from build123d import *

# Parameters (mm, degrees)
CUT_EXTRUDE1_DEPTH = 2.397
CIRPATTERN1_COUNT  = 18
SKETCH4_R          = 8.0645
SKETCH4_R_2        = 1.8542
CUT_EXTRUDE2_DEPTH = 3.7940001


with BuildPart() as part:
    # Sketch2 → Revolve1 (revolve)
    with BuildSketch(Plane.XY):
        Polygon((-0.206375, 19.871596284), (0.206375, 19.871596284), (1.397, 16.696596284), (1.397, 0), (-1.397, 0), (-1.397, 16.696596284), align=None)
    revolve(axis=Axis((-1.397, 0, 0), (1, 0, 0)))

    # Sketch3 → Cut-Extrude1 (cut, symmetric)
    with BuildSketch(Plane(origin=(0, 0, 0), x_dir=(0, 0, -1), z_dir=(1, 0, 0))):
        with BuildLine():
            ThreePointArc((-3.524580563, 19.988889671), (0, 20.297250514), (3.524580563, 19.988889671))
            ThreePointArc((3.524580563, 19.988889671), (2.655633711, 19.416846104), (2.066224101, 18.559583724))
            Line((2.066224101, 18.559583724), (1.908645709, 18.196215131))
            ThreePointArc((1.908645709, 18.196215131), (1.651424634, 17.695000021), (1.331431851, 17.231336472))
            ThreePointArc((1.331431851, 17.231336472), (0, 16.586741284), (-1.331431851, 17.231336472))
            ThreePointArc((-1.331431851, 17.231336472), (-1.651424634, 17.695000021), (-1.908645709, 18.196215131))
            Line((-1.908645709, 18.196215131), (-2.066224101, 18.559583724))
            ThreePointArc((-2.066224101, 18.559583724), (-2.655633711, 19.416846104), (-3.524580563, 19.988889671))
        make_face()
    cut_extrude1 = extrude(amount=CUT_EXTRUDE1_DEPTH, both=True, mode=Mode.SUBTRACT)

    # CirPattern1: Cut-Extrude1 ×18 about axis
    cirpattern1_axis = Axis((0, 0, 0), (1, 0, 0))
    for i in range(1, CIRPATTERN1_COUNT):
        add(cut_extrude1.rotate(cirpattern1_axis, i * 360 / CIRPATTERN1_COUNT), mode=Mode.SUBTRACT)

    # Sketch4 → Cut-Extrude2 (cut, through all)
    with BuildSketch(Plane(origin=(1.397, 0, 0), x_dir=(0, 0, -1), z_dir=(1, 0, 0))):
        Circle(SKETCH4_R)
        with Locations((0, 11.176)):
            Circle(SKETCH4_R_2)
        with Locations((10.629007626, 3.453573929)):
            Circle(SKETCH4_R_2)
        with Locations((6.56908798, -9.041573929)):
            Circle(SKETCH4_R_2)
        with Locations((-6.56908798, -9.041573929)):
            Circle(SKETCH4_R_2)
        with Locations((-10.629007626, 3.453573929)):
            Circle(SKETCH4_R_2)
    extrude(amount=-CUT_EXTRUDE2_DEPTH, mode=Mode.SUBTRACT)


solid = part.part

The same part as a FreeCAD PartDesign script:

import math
import FreeCAD as App
import Part
import Sketcher
Q = App.Units.Quantity


def add_polygon(sketch, points):
    """Adds a closed chain of lines whose ends are joined by coincident constraints."""
    first, n = sketch.GeometryCount, len(points)
    for a, b in zip(points, points[1:] + points[:1]):
        sketch.addGeometry(Part.LineSegment(App.Vector(*a, 0), App.Vector(*b, 0)), False)
    for i in range(n):
        sketch.addConstraint(Sketcher.Constraint("Coincident", first + i, 2, first + (i + 1) % n, 1))

doc = App.newDocument("Part")
params = doc.addObject("Spreadsheet::Sheet", "Params")
for row, (alias, value) in enumerate([
    ("sketch1_width", "0.11 in"),
    ("revolution_angle", "360 deg"),
    ("pocket1_length", "4.794 mm"),
    ("sketch3_diameter", "0.635 in"),
    ("sketch3_diameter2", "0.146 in"),
], start=1):
    params.set(f"A{row}", alias)
    params.set(f"B{row}", "=" + value)
    params.setAlias(f"B{row}", alias)

body = doc.addObject("PartDesign::Body", "Body")

# Sketch on XY plane
sketch1 = doc.addObject("Sketcher::SketchObject", "Sketch")
body.addObject(sketch1)
sketch1.AttachmentSupport = (doc.XY_Plane, [""])
sketch1.MapMode = "FlatFace"
add_polygon(sketch1, [(0.206375, 19.871596), (-0.206375, 19.871596), (-1.397, 16.696596), (-1.397, 0), (1.397, 0), (1.397, 16.696596)])  # lines 0-5
sketch1.addConstraint([
    Sketcher.Constraint("Horizontal", 0),
    Sketcher.Constraint("Vertical", 2),
    Sketcher.Constraint("Horizontal", 3),
    Sketcher.Constraint("Vertical", 4),
    Sketcher.Constraint("Symmetric", 2, 2, 3, 2, -1, 1),
    Sketcher.Constraint("Horizontal", 1, 2, 4, 2),
    Sketcher.Constraint("Equal", 1, 5),
    Sketcher.Constraint("DistanceX", 3, 1, 3, 2, Q("0.11 in")),
    Sketcher.Constraint("DistanceX", 1, 2, 0, 2, Q("0.046875 in")),
    Sketcher.Constraint("DistanceY", 1, 2, 0, 2, Q("0.125 in")),
    Sketcher.Constraint("DistanceY", 2, 2, 2, 1, 16.696596),
])
sketch1.setExpression("Constraints[13]", "Params.sketch1_width")
revolution = doc.addObject("PartDesign::Revolution", "Revolution")
body.addObject(revolution)
revolution.Profile = sketch1
revolution.ReferenceAxis = (sketch1, ["H_Axis"])
revolution.setExpression("Angle", "Params.revolution_angle")

# Sketch on YZ plane
sketch2 = doc.addObject("Sketcher::SketchObject", "Sketch001")
body.addObject(sketch2)
sketch2.AttachmentSupport = (doc.YZ_Plane, [""])
sketch2.MapMode = "FlatFace"
sketch2.addGeometry([
    Part.ArcOfCircle(Part.Circle(App.Vector(0, 0, 0), App.Vector(0, 0, 1), 20.297251), math.radians(-10), math.radians(10)),  # 0
    Part.ArcOfCircle(Part.Circle(App.Vector(17.481355, 4.552569, 0), App.Vector(0, 0, 1), 2.710072), math.radians(-66.555556), math.radians(-22.291667)),  # 1
    Part.LineSegment(App.Vector(18.559584, 2.066224, 0), App.Vector(18.196215, 1.908646, 0)),  # 2
    Part.ArcOfCircle(Part.Circle(App.Vector(19.92251, -2.072112, 0), App.Vector(0, 0, 1), 4.338955), math.radians(113.444444), math.radians(128.333333)),  # 3
    Part.ArcOfCircle(Part.Circle(App.Vector(18.284096, 0, 0), App.Vector(0, 0, 1), 1.697355), math.radians(128.333333), math.radians(231.666667)),  # 4
    Part.ArcOfCircle(Part.Circle(App.Vector(19.92251, 2.072112, 0), App.Vector(0, 0, 1), 4.338955), math.radians(-128.333333), math.radians(-113.444444)),  # 5
    Part.LineSegment(App.Vector(18.196215, -1.908646, 0), App.Vector(18.559584, -2.066224, 0)),  # 6
    Part.ArcOfCircle(Part.Circle(App.Vector(17.481355, -4.552569, 0), App.Vector(0, 0, 1), 2.710072), math.radians(22.291667), math.radians(66.555556)),  # 7
], False)
sketch2.addConstraint([
    Sketcher.Constraint("Coincident", 0, 2, 1, 2),
    Sketcher.Constraint("Tangent", 1, 1, 2, 1),
    Sketcher.Constraint("Tangent", 2, 2, 3, 1),
    Sketcher.Constraint("Tangent", 3, 2, 4, 1),
    Sketcher.Constraint("Tangent", 4, 2, 5, 1),
    Sketcher.Constraint("Tangent", 5, 2, 6, 1),
    Sketcher.Constraint("Tangent", 6, 2, 7, 2),
    Sketcher.Constraint("Coincident", 7, 1, 0, 1),
    Sketcher.Constraint("Coincident", 0, 3, -1, 1),
    Sketcher.Constraint("Equal", 3, 5),
    Sketcher.Constraint("Equal", 1, 7),
    Sketcher.Constraint("Symmetric", 3, 3, 5, 3, -1),
    Sketcher.Constraint("Symmetric", 1, 3, 7, 3, -1),
    Sketcher.Constraint("Radius", 0, 20.297251),
    Sketcher.Constraint("Radius", 1, 2.710072),
    Sketcher.Constraint("Radius", 3, 4.338955),
    Sketcher.Constraint("Radius", 4, 1.697355),
    Sketcher.Constraint("DistanceY", -1, 1, 1, 3, 4.552569),
    Sketcher.Constraint("DistanceX", -1, 1, 3, 3, 19.92251),
    Sketcher.Constraint("DistanceX", -1, 1, 0, 2, 19.98889),
    Sketcher.Constraint("DistanceY", -1, 1, 3, 2, 1.331432),
])
pocket1 = doc.addObject("PartDesign::Pocket", "Pocket")
body.addObject(pocket1)
pocket1.Profile = sketch2
pocket1.setExpression("Length", "Params.pocket1_length")
pocket1.Midplane = True
doc.recompute()

polarpattern = doc.addObject("PartDesign::PolarPattern", "PolarPattern")
body.addObject(polarpattern)
polarpattern.Originals = [pocket1]
polarpattern.Axis = (doc.X_Axis, [""])
polarpattern.Angle = 360
polarpattern.Occurrences = 18
body.Tip = polarpattern

# Sketch on YZ plane
sketch3 = doc.addObject("Sketcher::SketchObject", "Sketch002")
body.addObject(sketch3)
sketch3.AttachmentSupport = (doc.YZ_Plane, [""])
sketch3.MapMode = "FlatFace"
sketch3.AttachmentOffset = App.Placement(App.Vector(0, 0, 0.055 * 25.4), App.Rotation())
sketch3.addGeometry([
    Part.Circle(App.Vector(0, 0, 0), App.Vector(0, 0, 1), 8.0645),  # 0
    Part.Circle(App.Vector(11.176, 0, 0), App.Vector(0, 0, 1), 1.8542),  # 1
    Part.Circle(App.Vector(3.453574, -10.629008, 0), App.Vector(0, 0, 1), 1.8542),  # 2
    Part.Circle(App.Vector(-9.041574, -6.569088, 0), App.Vector(0, 0, 1), 1.8542),  # 3
    Part.Circle(App.Vector(-9.041574, 6.569088, 0), App.Vector(0, 0, 1), 1.8542),  # 4
    Part.Circle(App.Vector(3.453574, 10.629008, 0), App.Vector(0, 0, 1), 1.8542),  # 5
], False)
sketch3.addConstraint([
    Sketcher.Constraint("Coincident", 0, 3, -1, 1),
    Sketcher.Constraint("Equal", 1, 2),
    Sketcher.Constraint("Equal", 2, 3),
    Sketcher.Constraint("Equal", 3, 4),
    Sketcher.Constraint("Equal", 4, 5),
    Sketcher.Constraint("Symmetric", 3, 3, 4, 3, -1),
    Sketcher.Constraint("Symmetric", 2, 3, 5, 3, -1),
    Sketcher.Constraint("PointOnObject", 1, 3, -1),
    Sketcher.Constraint("Diameter", 0, Q("0.635 in")),
    Sketcher.Constraint("Diameter", 1, Q("0.146 in")),
    Sketcher.Constraint("DistanceX", -1, 1, 1, 3, Q("0.44 in")),
    Sketcher.Constraint("DistanceY", 2, 3, 3, 3, 4.05992),
    Sketcher.Constraint("DistanceX", -1, 1, 2, 3, 3.453574),
    Sketcher.Constraint("DistanceY", 2, 3, -1, 1, 10.629008),
    Sketcher.Constraint("DistanceX", 3, 3, -1, 1, 9.041574),
])
sketch3.setExpression("Constraints[8]", "Params.sketch3_diameter")
sketch3.setExpression("Constraints[9]", "Params.sketch3_diameter2")
pocket2 = doc.addObject("PartDesign::Pocket", "Pocket001")
body.addObject(pocket2)
pocket2.Profile = sketch3
pocket2.Type = "ThroughAll"

doc.recompute()
